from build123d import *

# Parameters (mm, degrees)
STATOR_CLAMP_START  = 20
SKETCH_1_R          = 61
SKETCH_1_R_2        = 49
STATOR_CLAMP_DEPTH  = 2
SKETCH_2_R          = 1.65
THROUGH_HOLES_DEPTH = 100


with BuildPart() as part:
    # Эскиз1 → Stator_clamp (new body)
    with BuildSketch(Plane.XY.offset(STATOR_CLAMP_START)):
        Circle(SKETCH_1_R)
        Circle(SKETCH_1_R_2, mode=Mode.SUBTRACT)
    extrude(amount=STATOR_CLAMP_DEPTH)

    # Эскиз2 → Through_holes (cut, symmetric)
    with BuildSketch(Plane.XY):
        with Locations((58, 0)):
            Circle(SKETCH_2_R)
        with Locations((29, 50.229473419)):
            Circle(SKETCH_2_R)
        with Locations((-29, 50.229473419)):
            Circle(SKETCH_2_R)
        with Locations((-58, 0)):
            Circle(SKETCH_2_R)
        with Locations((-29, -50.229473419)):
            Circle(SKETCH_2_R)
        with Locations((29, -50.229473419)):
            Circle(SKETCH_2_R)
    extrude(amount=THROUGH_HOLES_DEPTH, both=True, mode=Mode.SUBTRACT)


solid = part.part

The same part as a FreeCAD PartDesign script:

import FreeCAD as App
import Part
import Sketcher

doc = App.newDocument("Part")
body = doc.addObject("PartDesign::Body", "Body")

# Sketch on XY plane
sketch1 = body.newObject("Sketcher::SketchObject", "Sketch")
sketch1.AttachmentSupport = (doc.getObject("XY_Plane"), [""])
sketch1.MapMode = "FlatFace"
sketch1.AttachmentOffset = App.Placement(App.Vector(0, 0, 20), App.Rotation())
sketch1.addGeometry(Part.Circle(App.Vector(0, 0, 0), App.Vector(0, 0, 1), 61), False)
sketch1.addGeometry(Part.Circle(App.Vector(0, 0, 0), App.Vector(0, 0, 1), 49), False)
sketch1.addConstraint(Sketcher.Constraint("Coincident", 0, 3, -1, 1))
sketch1.addConstraint(Sketcher.Constraint("Coincident", 1, 3, -1, 1))
sketch1.addConstraint(Sketcher.Constraint("Diameter", 0, 122.0))
sketch1.addConstraint(Sketcher.Constraint("Diameter", 1, 98.0))
pad1 = body.newObject("PartDesign::Pad", "Pad")
pad1.Profile = sketch1
pad1.Length = 2

# Sketch on XY plane
sketch2 = body.newObject("Sketcher::SketchObject", "Sketch001")
sketch2.AttachmentSupport = (doc.getObject("XY_Plane"), [""])
sketch2.MapMode = "FlatFace"
sketch2.addGeometry(Part.Circle(App.Vector(58, 0, 0), App.Vector(0, 0, 1), 1.65), False)
sketch2.addGeometry(Part.Circle(App.Vector(29, 50.229473, 0), App.Vector(0, 0, 1), 1.65), False)
sketch2.addGeometry(Part.Circle(App.Vector(-29, 50.229473, 0), App.Vector(0, 0, 1), 1.65), False)
sketch2.addGeometry(Part.Circle(App.Vector(-58, 0, 0), App.Vector(0, 0, 1), 1.65), False)
sketch2.addGeometry(Part.Circle(App.Vector(-29, -50.229473, 0), App.Vector(0, 0, 1), 1.65), False)
sketch2.addGeometry(Part.Circle(App.Vector(29, -50.229473, 0), App.Vector(0, 0, 1), 1.65), False)
sketch2.addConstraint(Sketcher.Constraint("Equal", 0, 1))
sketch2.addConstraint(Sketcher.Constraint("Equal", 1, 2))
sketch2.addConstraint(Sketcher.Constraint("Equal", 2, 3))
sketch2.addConstraint(Sketcher.Constraint("Equal", 3, 4))
sketch2.addConstraint(Sketcher.Constraint("Equal", 4, 5))
sketch2.addConstraint(Sketcher.Constraint("Symmetric", 0, 3, 3, 3, -1, 1))
sketch2.addConstraint(Sketcher.Constraint("Symmetric", 1, 3, 4, 3, -1, 1))
sketch2.addConstraint(Sketcher.Constraint("Symmetric", 2, 3, 5, 3, -1, 1))
sketch2.addConstraint(Sketcher.Constraint("Symmetric", 1, 3, 2, 3, -2))
sketch2.addConstraint(Sketcher.Constraint("PointOnObject", 0, 3, -1))
sketch2.addConstraint(Sketcher.Constraint("Diameter", 0, 3.3))
sketch2.addConstraint(Sketcher.Constraint("DistanceX", -1, 1, 0, 3, 58.0))
sketch2.addConstraint(Sketcher.Constraint("DistanceX", -1, 1, 1, 3, 29.0))
sketch2.addConstraint(Sketcher.Constraint("DistanceY", -1, 1, 1, 3, 50.229473))
pocket1 = body.newObject("PartDesign::Pocket", "Pocket")
pocket1.Profile = sketch2
pocket1.Length = 200
pocket1.Midplane = True

doc.recompute()
